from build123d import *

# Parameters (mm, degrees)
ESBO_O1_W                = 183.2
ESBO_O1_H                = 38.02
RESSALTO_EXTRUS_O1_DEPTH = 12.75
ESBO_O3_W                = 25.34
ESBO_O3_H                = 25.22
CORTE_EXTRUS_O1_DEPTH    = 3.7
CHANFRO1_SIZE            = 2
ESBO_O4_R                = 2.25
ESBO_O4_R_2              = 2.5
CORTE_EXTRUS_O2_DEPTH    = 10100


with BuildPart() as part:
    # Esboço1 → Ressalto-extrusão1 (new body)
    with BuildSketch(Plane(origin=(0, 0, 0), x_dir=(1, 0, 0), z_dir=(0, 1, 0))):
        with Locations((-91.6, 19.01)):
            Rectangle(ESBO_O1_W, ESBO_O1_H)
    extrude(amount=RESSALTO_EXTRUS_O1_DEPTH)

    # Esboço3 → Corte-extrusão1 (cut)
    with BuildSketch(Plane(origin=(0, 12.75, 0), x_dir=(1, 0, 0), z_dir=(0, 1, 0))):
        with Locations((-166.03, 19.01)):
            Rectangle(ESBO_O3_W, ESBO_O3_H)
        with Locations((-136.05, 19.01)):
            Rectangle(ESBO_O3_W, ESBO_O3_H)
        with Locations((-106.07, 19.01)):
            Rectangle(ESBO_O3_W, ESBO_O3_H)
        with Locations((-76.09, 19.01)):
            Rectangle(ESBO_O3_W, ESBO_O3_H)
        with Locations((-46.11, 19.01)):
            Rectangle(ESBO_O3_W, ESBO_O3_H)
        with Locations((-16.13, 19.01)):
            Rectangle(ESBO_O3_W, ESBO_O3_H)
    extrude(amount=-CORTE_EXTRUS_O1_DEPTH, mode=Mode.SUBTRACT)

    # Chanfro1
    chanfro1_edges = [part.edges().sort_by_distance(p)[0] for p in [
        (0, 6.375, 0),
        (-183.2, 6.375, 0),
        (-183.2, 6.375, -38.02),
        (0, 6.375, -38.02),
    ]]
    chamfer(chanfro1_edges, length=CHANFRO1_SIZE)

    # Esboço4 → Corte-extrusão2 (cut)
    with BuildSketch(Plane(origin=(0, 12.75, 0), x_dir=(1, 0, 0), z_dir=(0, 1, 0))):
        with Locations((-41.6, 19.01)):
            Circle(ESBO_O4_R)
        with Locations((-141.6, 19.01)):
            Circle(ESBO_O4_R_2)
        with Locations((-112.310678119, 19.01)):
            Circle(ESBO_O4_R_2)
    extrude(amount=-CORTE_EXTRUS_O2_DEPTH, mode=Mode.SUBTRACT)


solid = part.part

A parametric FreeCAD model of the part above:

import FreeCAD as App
import Part
import Sketcher
from FreeCAD import Vector


def edges_at(feature, points):
    """Names of the edges that pass closest to the given points."""
    edges = feature.Shape.Edges
    near = lambda p: min(range(len(edges)), key=lambda i: edges[i].distToShape(Part.Vertex(*p))[0])
    return sorted({f"Edge{near(p) + 1}" for p in points})


def add_polygon(sketch, points):
    """Adds a closed chain of lines whose ends are joined by coincident constraints."""
    first, n = sketch.GeometryCount, len(points)
    for a, b in zip(points, points[1:] + points[:1]):
        sketch.addGeometry(Part.LineSegment(App.Vector(*a, 0), App.Vector(*b, 0)), False)
    for i in range(n):
        sketch.addConstraint(Sketcher.Constraint("Coincident", first + i, 2, first + (i + 1) % n, 1))

doc = App.newDocument("Part")
params = doc.addObject("Spreadsheet::Sheet", "Params")
for row, (alias, value) in enumerate([
    ("sketch1_width", "183.2 mm"),
    ("sketch1_height", "38.02 mm"),
    ("pad1_length", "12.75 mm"),
    ("sketch2_width", "25.34 mm"),
    ("sketch2_height", "25.22 mm"),
    ("pocket1_length", "3.7 mm"),
    ("chamfer_size", "2 mm"),
    ("sketch3_diameter", "5 mm"),
    ("sketch3_diameter2", "4.5 mm"),
    ("pocket2_length", "10100 mm"),
], start=1):
    params.set(f"A{row}", alias)
    params.set(f"B{row}", "=" + value)
    params.setAlias(f"B{row}", alias)

body = doc.addObject("PartDesign::Body", "Body")

sketch1 = doc.addObject("Sketcher::SketchObject", "Sketch")
body.addObject(sketch1)
sketch1.AttachmentSupport = (doc.XZ_Plane, [""])
sketch1.MapMode = "FlatFace"
add_polygon(sketch1, [(-183, -38), (-183, 0), (0, 0), (0, -38)])
sketch1.addConstraint([
    Sketcher.Constraint("Vertical", 0),
    Sketcher.Constraint("Horizontal", 1),
    Sketcher.Constraint("Vertical", 2),
    Sketcher.Constraint("Horizontal", 3),
    Sketcher.Constraint("Coincident", 1, 2, -1, 1),
    Sketcher.Constraint("DistanceX", 1, 1, 1, 2, 183.2),
    Sketcher.Constraint("DistanceY", 0, 1, 0, 2, 38.02),
])
sketch1.setExpression("Constraints[9]", "Params.sketch1_width")
sketch1.setExpression("Constraints[10]", "Params.sketch1_height")
pad1 = doc.addObject("PartDesign::Pad", "Pad")
body.addObject(pad1)
pad1.Profile = sketch1
pad1.setExpression("Length", "Params.pad1_length")
pad1.Reversed = True

sketch2 = doc.addObject("Sketcher::SketchObject", "Sketch001")
body.addObject(sketch2)
sketch2.AttachmentSupport = (doc.XZ_Plane, [""])
sketch2.MapMode = "FlatFace"
sketch2.AttachmentOffset = App.Placement(Vector(0, 0, -12.75), App.Rotation())
add_polygon(sketch2, [(-179, -32), (-179, -6), (-153, -6), (-153, -32)])
add_polygon(sketch2, [(-149, -32), (-149, -6), (-123, -6), (-123, -32)])
add_polygon(sketch2, [(-119, -32), (-119, -6), (-93, -6), (-93, -32)])
add_polygon(sketch2, [(-89, -32), (-89, -6), (-63, -6), (-63, -32)])
add_polygon(sketch2, [(-59, -32), (-59, -6), (-33, -6), (-33, -32)])
add_polygon(sketch2, [(-29, -32), (-29, -6), (-3, -6), (-3, -32)])
sketch2.addConstraint([
    Sketcher.Constraint("Vertical", 0),
    Sketcher.Constraint("Horizontal", 1),
    Sketcher.Constraint("Vertical", 2),
    Sketcher.Constraint("Horizontal", 3),
    Sketcher.Constraint("Vertical", 4),
    Sketcher.Constraint("Horizontal", 5),
    Sketcher.Constraint("Vertical", 6),
    Sketcher.Constraint("Horizontal", 7),
    Sketcher.Constraint("Vertical", 8),
    Sketcher.Constraint("Horizontal", 9),
    Sketcher.Constraint("Vertical", 10),
    Sketcher.Constraint("Horizontal", 11),
    Sketcher.Constraint("Vertical", 12),
    Sketcher.Constraint("Horizontal", 13),
    Sketcher.Constraint("Vertical", 14),
    Sketcher.Constraint("Horizontal", 15),
    Sketcher.Constraint("Vertical", 16),
    Sketcher.Constraint("Horizontal", 17),
    Sketcher.Constraint("Vertical", 18),
    Sketcher.Constraint("Horizontal", 19),
    Sketcher.Constraint("Vertical", 20),
    Sketcher.Constraint("Horizontal", 21),
    Sketcher.Constraint("Vertical", 22),
    Sketcher.Constraint("Horizontal", 23),
    Sketcher.Constraint("Horizontal", 1, 2, 4, 2),
    Sketcher.Constraint("Horizontal", 3, 2, 6, 2),
    Sketcher.Constraint("Horizontal", 5, 2, 8, 2),
    Sketcher.Constraint("Horizontal", 7, 2, 10, 2),
    Sketcher.Constraint("Horizontal", 9, 2, 12, 2),
    Sketcher.Constraint("Horizontal", 11, 2, 14, 2),
    Sketcher.Constraint("Horizontal", 13, 2, 16, 2),
    Sketcher.Constraint("Horizontal", 15, 2, 18, 2),
    Sketcher.Constraint("Horizontal", 17, 2, 20, 2),
    Sketcher.Constraint("Horizontal", 19, 2, 22, 2),
    Sketcher.Constraint("Equal", 3, 5),
    Sketcher.Constraint("Equal", 7, 9),
    Sketcher.Constraint("Equal", 11, 13),
    Sketcher.Constraint("Equal", 15, 17),
    Sketcher.Constraint("Equal", 19, 21),
    Sketcher.Constraint("DistanceX", 1, 1, 1, 2, 25.34),
    Sketcher.Constraint("DistanceY", 0, 1, 0, 2, 25.22),
    Sketcher.Constraint("DistanceX", 0, 2, -1, 1, 178.7),
    Sketcher.Constraint("DistanceY", 0, 2, -1, 1, 6.4),
    Sketcher.Constraint("DistanceX", 9, 2, -1, 1, 93.4),
    Sketcher.Constraint("DistanceX", 20, 2, -1, 1, 28.8),
    Sketcher.Constraint("DistanceX", 4, 2, -1, 1, 148.72),
    Sketcher.Constraint("DistanceX", 12, 2, -1, 1, 88.76),
    Sketcher.Constraint("DistanceX", 16, 2, -1, 1, 58.78),
])
sketch2.setExpression("Constraints[63]", "Params.sketch2_width")
sketch2.setExpression("Constraints[64]", "Params.sketch2_height")
pocket1 = doc.addObject("PartDesign::Pocket", "Pocket")
body.addObject(pocket1)
pocket1.Profile = sketch2
pocket1.setExpression("Length", "Params.pocket1_length")
pocket1.Reversed = True
doc.recompute()

chamfer = doc.addObject("PartDesign::Chamfer", "Chamfer")
body.addObject(chamfer)
chamfer.Base = (pocket1, edges_at(pocket1, [
    (0, 6.375, 0),
    (-183.2, 6.375, 0),
    (-183.2, 6.375, -38.02),
    (0, 6.375, -38.02),
]))
chamfer.setExpression("Size", "Params.chamfer_size")

sketch3 = doc.addObject("Sketcher::SketchObject", "Sketch002")
body.addObject(sketch3)
sketch3.AttachmentSupport = (doc.XZ_Plane, [""])
sketch3.MapMode = "FlatFace"
sketch3.AttachmentOffset = App.Placement(Vector(0, 0, -12.75), App.Rotation())
sketch3.addGeometry([
    Part.Circle(Vector(-41.6, -19, 0), Vector(0, 0, 1), 2.2),
    Part.Circle(Vector(-141.6, -19, 0), Vector(0, 0, 1), 2.5),
    Part.Circle(Vector(-112.3, -19, 0), Vector(0, 0, 1), 2.5),
], False)
sketch3.addConstraint([
    Sketcher.Constraint("Equal", 1, 2),
    Sketcher.Constraint("Horizontal", 0, 3, 1, 3),
    Sketcher.Constraint("Horizontal", 1, 3, 2, 3),
    Sketcher.Constraint("Diameter", 1, 5.0),
    Sketcher.Constraint("Diameter", 0, 4.5),
    Sketcher.Constraint("DistanceX", 1, 3, 0, 3, 100.0),
    Sketcher.Constraint("DistanceX", 0, 3, -1, 1, 41.6),
    Sketcher.Constraint("DistanceY", 0, 3, -1, 1, 19.01),
    Sketcher.Constraint("DistanceX", 2, 3, -1, 1, 112.310678),
])
sketch3.setExpression("Constraints[3]", "Params.sketch3_diameter")
sketch3.setExpression("Constraints[4]", "Params.sketch3_diameter2")
pocket2 = doc.addObject("PartDesign::Pocket", "Pocket001")
body.addObject(pocket2)
pocket2.Profile = sketch3
pocket2.setExpression("Length", "Params.pocket2_length")
pocket2.Reversed = True

doc.recompute()
